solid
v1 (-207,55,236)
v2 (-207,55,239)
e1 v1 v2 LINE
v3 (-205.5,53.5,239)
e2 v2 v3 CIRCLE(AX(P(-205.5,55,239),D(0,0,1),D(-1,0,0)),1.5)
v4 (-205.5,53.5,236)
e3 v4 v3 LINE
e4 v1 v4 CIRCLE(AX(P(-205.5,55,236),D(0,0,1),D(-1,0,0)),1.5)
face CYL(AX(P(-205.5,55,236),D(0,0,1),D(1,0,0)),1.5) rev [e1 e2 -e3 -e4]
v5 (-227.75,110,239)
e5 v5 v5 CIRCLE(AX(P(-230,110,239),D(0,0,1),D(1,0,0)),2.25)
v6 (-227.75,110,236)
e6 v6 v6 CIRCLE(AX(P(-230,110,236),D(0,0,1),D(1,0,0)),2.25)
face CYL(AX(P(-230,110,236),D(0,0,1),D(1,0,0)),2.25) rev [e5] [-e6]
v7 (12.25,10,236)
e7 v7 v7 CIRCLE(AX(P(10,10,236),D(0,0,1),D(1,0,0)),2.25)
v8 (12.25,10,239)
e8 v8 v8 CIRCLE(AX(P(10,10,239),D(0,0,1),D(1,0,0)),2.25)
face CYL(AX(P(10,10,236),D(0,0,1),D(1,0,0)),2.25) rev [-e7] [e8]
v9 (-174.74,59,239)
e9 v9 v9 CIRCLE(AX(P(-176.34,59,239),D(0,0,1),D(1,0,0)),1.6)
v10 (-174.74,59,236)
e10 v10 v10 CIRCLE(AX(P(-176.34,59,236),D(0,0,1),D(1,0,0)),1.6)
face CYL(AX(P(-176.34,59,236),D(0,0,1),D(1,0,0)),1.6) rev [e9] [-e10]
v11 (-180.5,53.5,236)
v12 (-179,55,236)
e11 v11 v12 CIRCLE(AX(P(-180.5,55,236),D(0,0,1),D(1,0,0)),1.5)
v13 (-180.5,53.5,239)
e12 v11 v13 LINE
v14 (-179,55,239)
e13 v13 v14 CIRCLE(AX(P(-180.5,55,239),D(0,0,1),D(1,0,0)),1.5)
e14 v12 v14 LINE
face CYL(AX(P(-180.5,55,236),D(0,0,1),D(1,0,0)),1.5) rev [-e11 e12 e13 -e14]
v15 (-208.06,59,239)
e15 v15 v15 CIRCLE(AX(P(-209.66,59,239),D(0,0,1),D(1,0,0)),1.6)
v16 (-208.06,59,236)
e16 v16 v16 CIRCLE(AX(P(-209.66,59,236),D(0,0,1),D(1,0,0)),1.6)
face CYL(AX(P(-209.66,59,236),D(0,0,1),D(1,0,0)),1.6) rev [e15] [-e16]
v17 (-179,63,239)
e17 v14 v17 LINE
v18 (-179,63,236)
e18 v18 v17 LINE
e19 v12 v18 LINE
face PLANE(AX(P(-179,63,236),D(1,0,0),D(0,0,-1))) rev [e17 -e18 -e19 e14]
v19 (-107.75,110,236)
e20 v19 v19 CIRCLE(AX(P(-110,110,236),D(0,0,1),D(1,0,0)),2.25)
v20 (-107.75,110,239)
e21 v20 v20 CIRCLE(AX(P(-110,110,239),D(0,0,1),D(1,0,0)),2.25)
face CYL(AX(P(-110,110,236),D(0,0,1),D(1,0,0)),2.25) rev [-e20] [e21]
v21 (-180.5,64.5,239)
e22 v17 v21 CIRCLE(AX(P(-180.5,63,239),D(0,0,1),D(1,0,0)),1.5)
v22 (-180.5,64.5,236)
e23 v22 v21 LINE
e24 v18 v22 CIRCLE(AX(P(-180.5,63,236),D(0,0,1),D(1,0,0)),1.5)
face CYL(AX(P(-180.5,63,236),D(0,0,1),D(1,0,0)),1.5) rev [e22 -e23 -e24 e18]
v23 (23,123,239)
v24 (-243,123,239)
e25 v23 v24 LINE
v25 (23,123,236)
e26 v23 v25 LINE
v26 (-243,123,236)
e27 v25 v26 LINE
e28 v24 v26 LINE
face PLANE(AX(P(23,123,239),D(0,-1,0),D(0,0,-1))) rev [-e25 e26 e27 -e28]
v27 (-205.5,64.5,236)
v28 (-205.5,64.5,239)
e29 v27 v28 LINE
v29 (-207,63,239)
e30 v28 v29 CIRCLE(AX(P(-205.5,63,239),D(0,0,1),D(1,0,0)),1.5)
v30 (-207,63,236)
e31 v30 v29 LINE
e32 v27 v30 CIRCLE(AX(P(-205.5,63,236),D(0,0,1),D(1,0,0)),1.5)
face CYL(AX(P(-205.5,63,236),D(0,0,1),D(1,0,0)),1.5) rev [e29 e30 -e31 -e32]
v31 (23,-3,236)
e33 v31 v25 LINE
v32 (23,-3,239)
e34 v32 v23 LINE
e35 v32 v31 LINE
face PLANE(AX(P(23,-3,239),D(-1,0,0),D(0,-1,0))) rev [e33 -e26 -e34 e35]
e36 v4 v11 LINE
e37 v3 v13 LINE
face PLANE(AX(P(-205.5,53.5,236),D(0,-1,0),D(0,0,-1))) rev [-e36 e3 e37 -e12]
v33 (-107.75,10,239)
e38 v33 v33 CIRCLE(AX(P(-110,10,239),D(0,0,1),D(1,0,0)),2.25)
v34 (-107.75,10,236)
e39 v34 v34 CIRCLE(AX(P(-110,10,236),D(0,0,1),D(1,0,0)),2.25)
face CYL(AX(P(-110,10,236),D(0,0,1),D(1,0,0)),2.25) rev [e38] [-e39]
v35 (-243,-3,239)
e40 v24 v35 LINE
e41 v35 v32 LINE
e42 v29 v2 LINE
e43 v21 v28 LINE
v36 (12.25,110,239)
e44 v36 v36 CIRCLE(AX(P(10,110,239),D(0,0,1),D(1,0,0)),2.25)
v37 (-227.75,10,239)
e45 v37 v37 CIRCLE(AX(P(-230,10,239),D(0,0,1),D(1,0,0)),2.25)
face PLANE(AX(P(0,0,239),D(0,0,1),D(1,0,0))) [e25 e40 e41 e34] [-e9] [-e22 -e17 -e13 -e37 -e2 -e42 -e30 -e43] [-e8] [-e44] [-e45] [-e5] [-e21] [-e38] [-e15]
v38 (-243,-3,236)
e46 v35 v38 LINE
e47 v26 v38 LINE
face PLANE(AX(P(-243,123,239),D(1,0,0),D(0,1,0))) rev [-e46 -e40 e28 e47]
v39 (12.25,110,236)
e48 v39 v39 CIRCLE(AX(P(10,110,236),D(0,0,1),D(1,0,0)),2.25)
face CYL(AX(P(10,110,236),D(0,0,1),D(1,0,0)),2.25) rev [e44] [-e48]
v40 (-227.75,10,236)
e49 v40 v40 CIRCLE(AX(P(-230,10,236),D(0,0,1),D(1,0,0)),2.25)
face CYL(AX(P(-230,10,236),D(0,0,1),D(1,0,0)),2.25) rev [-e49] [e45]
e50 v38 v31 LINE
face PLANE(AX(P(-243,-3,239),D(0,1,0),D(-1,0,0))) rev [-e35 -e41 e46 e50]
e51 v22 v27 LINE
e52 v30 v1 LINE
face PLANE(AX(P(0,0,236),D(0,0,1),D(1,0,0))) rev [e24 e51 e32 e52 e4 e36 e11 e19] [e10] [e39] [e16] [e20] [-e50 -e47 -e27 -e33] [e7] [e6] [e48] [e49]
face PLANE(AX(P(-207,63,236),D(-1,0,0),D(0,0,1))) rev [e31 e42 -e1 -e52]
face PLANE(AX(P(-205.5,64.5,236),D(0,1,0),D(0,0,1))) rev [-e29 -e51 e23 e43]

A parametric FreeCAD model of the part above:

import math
import FreeCAD as App
import Part
import Sketcher
from FreeCAD import Vector


def add_polygon(sketch, points):
    """Adds a closed chain of lines whose ends are joined by coincident constraints."""
    first, n = sketch.GeometryCount, len(points)
    for a, b in zip(points, points[1:] + points[:1]):
        sketch.addGeometry(Part.LineSegment(App.Vector(*a, 0), App.Vector(*b, 0)), False)
    for i in range(n):
        sketch.addConstraint(Sketcher.Constraint("Coincident", first + i, 2, first + (i + 1) % n, 1))

doc = App.newDocument("Part")
body = doc.addObject("PartDesign::Body", "Body")

# Sketch on XY plane
sketch1 = body.newObject("Sketcher::SketchObject", "Sketch")
sketch1.AttachmentSupport = (doc.getObject("XY_Plane"), [""])
sketch1.MapMode = "FlatFace"
sketch1.AttachmentOffset = App.Placement(Vector(0, 0, 236), App.Rotation())
add_polygon(sketch1, [(-243, 123), (-243, -3), (23, -3), (23, 123)])  # lines 0-3
sketch1.addConstraint(Sketcher.Constraint("Vertical", 0))
sketch1.addConstraint(Sketcher.Constraint("Horizontal", 1))
sketch1.addConstraint(Sketcher.Constraint("Vertical", 2))
sketch1.addConstraint(Sketcher.Constraint("Horizontal", 3))
sketch1.addConstraint(Sketcher.Constraint("DistanceX", 1, 1, 1, 2, 266.0))
sketch1.addConstraint(Sketcher.Constraint("DistanceY", 0, 2, 0, 1, 126.0))
sketch1.addConstraint(Sketcher.Constraint("DistanceX", 0, 2, -1, 1, 243.0))
sketch1.addConstraint(Sketcher.Constraint("DistanceY", 0, 2, -1, 1, 3.0))
pad1 = body.newObject("PartDesign::Pad", "Pad")
pad1.Profile = sketch1
pad1.Length = 3

# Sketch on XY plane
sketch2 = body.newObject("Sketcher::SketchObject", "Sketch001")
sketch2.AttachmentSupport = (doc.getObject("XY_Plane"), [""])
sketch2.MapMode = "FlatFace"
sketch2.AttachmentOffset = App.Placement(Vector(0, 0, 239), App.Rotation())
sketch2.addGeometry(Part.Circle(Vector(-230, 110, 0), Vector(0, 0, 1), 2.2), False)
sketch2.addGeometry(Part.Circle(Vector(-110, 110, 0), Vector(0, 0, 1), 2.2), False)
sketch2.addGeometry(Part.Circle(Vector(10, 110, 0), Vector(0, 0, 1), 2.2), False)
sketch2.addGeometry(Part.Circle(Vector(10, 10, 0), Vector(0, 0, 1), 2.2), False)
sketch2.addGeometry(Part.Circle(Vector(-110, 10, 0), Vector(0, 0, 1), 2.2), False)
sketch2.addGeometry(Part.Circle(Vector(-230, 10, 0), Vector(0, 0, 1), 2.2), False)
sketch2.addConstraint(Sketcher.Constraint("Equal", 0, 1))
sketch2.addConstraint(Sketcher.Constraint("Equal", 1, 2))
sketch2.addConstraint(Sketcher.Constraint("Equal", 2, 3))
sketch2.addConstraint(Sketcher.Constraint("Equal", 3, 4))
sketch2.addConstraint(Sketcher.Constraint("Equal", 4, 5))
sketch2.addConstraint(Sketcher.Constraint("Horizontal", 0, 3, 1, 3))
sketch2.addConstraint(Sketcher.Constraint("Horizontal", 1, 3, 2, 3))
sketch2.addConstraint(Sketcher.Constraint("Horizontal", 3, 3, 4, 3))
sketch2.addConstraint(Sketcher.Constraint("Horizontal", 4, 3, 5, 3))
sketch2.addConstraint(Sketcher.Constraint("Vertical", 2, 3, 3, 3))
sketch2.addConstraint(Sketcher.Constraint("Vertical", 1, 3, 4, 3))
sketch2.addConstraint(Sketcher.Constraint("Vertical", 0, 3, 5, 3))
sketch2.addConstraint(Sketcher.Constraint("Diameter", 0, 4.5))
sketch2.addConstraint(Sketcher.Constraint("DistanceX", 0, 3, -1, 1, 230.0))
sketch2.addConstraint(Sketcher.Constraint("DistanceY", -1, 1, 0, 3, 110.0))
sketch2.addConstraint(Sketcher.Constraint("DistanceX", 1, 3, -1, 1, 110.0))
sketch2.addConstraint(Sketcher.Constraint("DistanceX", -1, 1, 2, 3, 10.0))
sketch2.addConstraint(Sketcher.Constraint("DistanceY", -1, 1, 3, 3, 10.0))
pocket1 = body.newObject("PartDesign::Pocket", "Pocket")
pocket1.Profile = sketch2
pocket1.Type = "ThroughAll"

# Sketch on XY plane
sketch3 = body.newObject("Sketcher::SketchObject", "Sketch002")
sketch3.AttachmentSupport = (doc.getObject("XY_Plane"), [""])
sketch3.MapMode = "FlatFace"
sketch3.AttachmentOffset = App.Placement(Vector(0, 0, 239), App.Rotation())
sketch3.addGeometry(Part.Circle(Vector(-209.7, 59, 0), Vector(0, 0, 1), 1.6), False)
sketch3.addGeometry(Part.Circle(Vector(-176.3, 59, 0), Vector(0, 0, 1), 1.6), False)
sketch3.addGeometry(Part.LineSegment(Vector(-207, 63, 0), Vector(-207, 55, 0)), False)
sketch3.addGeometry(Part.ArcOfCircle(Part.Circle(Vector(-205.5, 55, 0), Vector(0, 0, 1), 1.5), math.radians(180), math.radians(270)), False)
sketch3.addGeometry(Part.LineSegment(Vector(-205.5, 53.5, 0), Vector(-180.5, 53.5, 0)), False)
sketch3.addGeometry(Part.ArcOfCircle(Part.Circle(Vector(-180.5, 55, 0), Vector(0, 0, 1), 1.5), math.radians(-90), math.radians(0)), False)
sketch3.addGeometry(Part.LineSegment(Vector(-179, 55, 0), Vector(-179, 63, 0)), False)
sketch3.addGeometry(Part.ArcOfCircle(Part.Circle(Vector(-180.5, 63, 0), Vector(0, 0, 1), 1.5), math.radians(0), math.radians(90)), False)
sketch3.addGeometry(Part.LineSegment(Vector(-180.5, 64.5, 0), Vector(-205.5, 64.5, 0)), False)
sketch3.addGeometry(Part.ArcOfCircle(Part.Circle(Vector(-205.5, 63, 0), Vector(0, 0, 1), 1.5), math.radians(90), math.radians(180)), False)
sketch3.addConstraint(Sketcher.Constraint("Tangent", 2, 2, 3, 1))
sketch3.addConstraint(Sketcher.Constraint("Tangent", 3, 2, 4, 1))
sketch3.addConstraint(Sketcher.Constraint("Tangent", 4, 2, 5, 1))
sketch3.addConstraint(Sketcher.Constraint("Tangent", 5, 2, 6, 1))
sketch3.addConstraint(Sketcher.Constraint("Tangent", 6, 2, 7, 1))
sketch3.addConstraint(Sketcher.Constraint("Tangent", 7, 2, 8, 1))
sketch3.addConstraint(Sketcher.Constraint("Tangent", 8, 2, 9, 1))
sketch3.addConstraint(Sketcher.Constraint("Tangent", 9, 2, 2, 1))
sketch3.addConstraint(Sketcher.Constraint("Vertical", 2))
sketch3.addConstraint(Sketcher.Constraint("Horizontal", 4))
sketch3.addConstraint(Sketcher.Constraint("Vertical", 6))
sketch3.addConstraint(Sketcher.Constraint("Horizontal", 8))
sketch3.addConstraint(Sketcher.Constraint("Equal", 0, 1))
sketch3.addConstraint(Sketcher.Constraint("Equal", 3, 5))
sketch3.addConstraint(Sketcher.Constraint("Equal", 5, 7))
sketch3.addConstraint(Sketcher.Constraint("Equal", 7, 9))
sketch3.addConstraint(Sketcher.Constraint("Horizontal", 0, 3, 1, 3))
sketch3.addConstraint(Sketcher.Constraint("Diameter", 0, 3.2))
sketch3.addConstraint(Sketcher.Constraint("Radius", 3, 1.5))
sketch3.addConstraint(Sketcher.Constraint("DistanceX", 4, 1, 4, 2, 25.0))
sketch3.addConstraint(Sketcher.Constraint("DistanceY", 2, 2, 2, 1, 8.0))
sketch3.addConstraint(Sketcher.Constraint("DistanceY", -1, 1, 0, 3, 59.0))
sketch3.addConstraint(Sketcher.Constraint("DistanceY", -1, 1, 3, 3, 55.0))
sketch3.addConstraint(Sketcher.Constraint("DistanceX", 2, 2, -1, 1, 207.0))
sketch3.addConstraint(Sketcher.Constraint("DistanceX", 0, 3, -1, 1, 209.66))
sketch3.addConstraint(Sketcher.Constraint("DistanceX", 1, 3, -1, 1, 176.34))
pocket2 = body.newObject("PartDesign::Pocket", "Pocket001")
pocket2.Profile = sketch3
pocket2.Type = "ThroughAll"

doc.recompute()
